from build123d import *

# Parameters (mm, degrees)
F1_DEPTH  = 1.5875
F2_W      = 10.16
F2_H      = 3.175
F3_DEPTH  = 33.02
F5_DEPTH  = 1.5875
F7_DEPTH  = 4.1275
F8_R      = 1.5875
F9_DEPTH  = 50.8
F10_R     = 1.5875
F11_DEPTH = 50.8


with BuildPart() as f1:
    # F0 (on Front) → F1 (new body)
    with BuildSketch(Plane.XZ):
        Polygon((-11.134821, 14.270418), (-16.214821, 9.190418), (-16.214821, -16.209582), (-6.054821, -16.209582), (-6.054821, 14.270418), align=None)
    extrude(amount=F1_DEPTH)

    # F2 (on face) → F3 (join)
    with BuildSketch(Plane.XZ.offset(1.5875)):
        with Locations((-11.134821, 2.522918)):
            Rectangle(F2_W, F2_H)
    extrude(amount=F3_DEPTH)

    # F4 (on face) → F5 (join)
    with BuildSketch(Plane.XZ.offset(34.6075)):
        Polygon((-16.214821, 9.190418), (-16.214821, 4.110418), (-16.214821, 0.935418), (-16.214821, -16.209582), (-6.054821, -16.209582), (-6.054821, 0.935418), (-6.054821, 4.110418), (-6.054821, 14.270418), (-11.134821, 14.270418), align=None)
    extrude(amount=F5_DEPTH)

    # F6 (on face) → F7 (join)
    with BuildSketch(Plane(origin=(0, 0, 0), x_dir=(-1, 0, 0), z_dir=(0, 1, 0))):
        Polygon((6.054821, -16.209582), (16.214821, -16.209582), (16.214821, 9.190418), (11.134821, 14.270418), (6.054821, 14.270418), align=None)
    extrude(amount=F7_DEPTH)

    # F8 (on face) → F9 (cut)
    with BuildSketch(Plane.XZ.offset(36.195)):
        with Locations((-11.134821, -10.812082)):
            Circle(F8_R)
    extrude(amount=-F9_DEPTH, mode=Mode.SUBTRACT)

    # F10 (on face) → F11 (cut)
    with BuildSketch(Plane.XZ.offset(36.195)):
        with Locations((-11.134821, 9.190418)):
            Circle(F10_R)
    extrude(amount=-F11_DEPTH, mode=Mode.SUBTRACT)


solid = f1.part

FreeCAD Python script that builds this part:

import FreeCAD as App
import Part
import Sketcher
Q = App.Units.Quantity

doc = App.newDocument("Part")
body = doc.addObject("PartDesign::Body", "Body")

# Sketch on XZ plane
sketch1 = body.newObject("Sketcher::SketchObject", "Sketch")
sketch1.AttachmentSupport = (doc.getObject("XZ_Plane"), [""])
sketch1.MapMode = "FlatFace"
sketch1.addGeometry([
    Part.LineSegment(App.Vector(-11, 14, 0), App.Vector(-16, 9, 0)),  # 0
    Part.LineSegment(App.Vector(-16, 9, 0), App.Vector(-16, -16, 0)),  # 1
    Part.LineSegment(App.Vector(-16, -16, 0), App.Vector(-6, -16, 0)),  # 2
    Part.LineSegment(App.Vector(-6, -16, 0), App.Vector(-6, 14, 0)),  # 3
    Part.LineSegment(App.Vector(-6, 14, 0), App.Vector(-11, 14, 0)),  # 4
], False)
sketch1.addConstraint([
    Sketcher.Constraint("Coincident", 0, 2, 1, 1),
    Sketcher.Constraint("Coincident", 1, 2, 2, 1),
    Sketcher.Constraint("Coincident", 2, 2, 3, 1),
    Sketcher.Constraint("Coincident", 3, 2, 4, 1),
    Sketcher.Constraint("Coincident", 4, 2, 0, 1),
    Sketcher.Constraint("Vertical", 1),
    Sketcher.Constraint("Horizontal", 2),
    Sketcher.Constraint("Vertical", 3),
    Sketcher.Constraint("Horizontal", 4),
    Sketcher.Constraint("DistanceY", 1, 2, 1, 1, Q("1 in")),
    Sketcher.Constraint("DistanceX", 2, 1, 2, 2, Q("0.4 in")),
    Sketcher.Constraint("DistanceX", 4, 2, 4, 1, Q("0.2 in")),
    Sketcher.Constraint("DistanceY", 3, 1, 3, 2, Q("1.2 in")),
    Sketcher.Constraint("DistanceX", 0, 2, -1, 1, Q("16.214821 mm")),
    Sketcher.Constraint("DistanceY", -1, 1, 0, 2, Q("9.190418 mm")),
])
pad1 = body.newObject("PartDesign::Pad", "Pad")
pad1.Profile = sketch1
pad1.Length = Q("0.0625 in")

# Sketch on XZ plane
sketch2 = body.newObject("Sketcher::SketchObject", "Sketch001")
sketch2.AttachmentSupport = (doc.getObject("XZ_Plane"), [""])
sketch2.MapMode = "FlatFace"
sketch2.AttachmentOffset = App.Placement(App.Vector(0, 0, 0.0625 * 25.4), App.Rotation())
sketch2.addGeometry([
    Part.LineSegment(App.Vector(-16.2, 4.1, 0), App.Vector(-16.2, 0.9, 0)),
    Part.LineSegment(App.Vector(-16.2, 0.9, 0), App.Vector(-6.1, 0.9, 0)),
    Part.LineSegment(App.Vector(-6.1, 0.9, 0), App.Vector(-6.1, 4.1, 0)),
    Part.LineSegment(App.Vector(-6.1, 4.1, 0), App.Vector(-16.2, 4.1, 0)),
], False)
sketch2.addConstraint([
    Sketcher.Constraint("Coincident", 0, 2, 1, 1),
    Sketcher.Constraint("Coincident", 1, 2, 2, 1),
    Sketcher.Constraint("Coincident", 2, 2, 3, 1),
    Sketcher.Constraint("Coincident", 3, 2, 0, 1),
    Sketcher.Constraint("Vertical", 0),
    Sketcher.Constraint("Horizontal", 1),
    Sketcher.Constraint("Vertical", 2),
    Sketcher.Constraint("Horizontal", 3),
    Sketcher.Constraint("DistanceX", 1, 1, 1, 2, Q("0.4 in")),
    Sketcher.Constraint("DistanceY", 0, 2, 0, 1, Q("0.125 in")),
    Sketcher.Constraint("DistanceX", 0, 2, -1, 1, Q("16.214821 mm")),
    Sketcher.Constraint("DistanceY", -1, 1, 0, 2, Q("0.935418 mm")),
])
pad2 = body.newObject("PartDesign::Pad", "Pad001")
pad2.Profile = sketch2
pad2.Length = Q("1.3 in")

# Sketch on XZ plane
sketch3 = body.newObject("Sketcher::SketchObject", "Sketch002")
sketch3.AttachmentSupport = (doc.getObject("XZ_Plane"), [""])
sketch3.MapMode = "FlatFace"
sketch3.AttachmentOffset = App.Placement(App.Vector(0, 0, 1.3625 * 25.4), App.Rotation())
sketch3.addGeometry([
    Part.LineSegment(App.Vector(-16, 9, 0), App.Vector(-16, -16, 0)),  # 0
    Part.LineSegment(App.Vector(-16, -16, 0), App.Vector(-6, -16, 0)),  # 1
    Part.LineSegment(App.Vector(-6, -16, 0), App.Vector(-6, 14, 0)),  # 2
    Part.LineSegment(App.Vector(-6, 14, 0), App.Vector(-11, 14, 0)),  # 3
    Part.LineSegment(App.Vector(-11, 14, 0), App.Vector(-16, 9, 0)),  # 4
], False)
sketch3.addConstraint([
    Sketcher.Constraint("Coincident", 0, 2, 1, 1),
    Sketcher.Constraint("Coincident", 1, 2, 2, 1),
    Sketcher.Constraint("Coincident", 2, 2, 3, 1),
    Sketcher.Constraint("Coincident", 3, 2, 4, 1),
    Sketcher.Constraint("Coincident", 4, 2, 0, 1),
    Sketcher.Constraint("Vertical", 0),
    Sketcher.Constraint("Horizontal", 1),
    Sketcher.Constraint("Vertical", 2),
    Sketcher.Constraint("Horizontal", 3),
    Sketcher.Constraint("DistanceY", 0, 2, 0, 1, Q("1 in")),
    Sketcher.Constraint("DistanceX", 1, 1, 1, 2, Q("0.4 in")),
    Sketcher.Constraint("DistanceX", 3, 2, 3, 1, Q("0.2 in")),
    Sketcher.Constraint("DistanceY", 2, 1, 2, 2, Q("1.2 in")),
    Sketcher.Constraint("DistanceX", 0, 2, -1, 1, Q("16.214821 mm")),
    Sketcher.Constraint("DistanceY", 0, 2, -1, 1, Q("16.209582 mm")),
])
pad3 = body.newObject("PartDesign::Pad", "Pad002")
pad3.Profile = sketch3
pad3.Length = Q("0.0625 in")

# Sketch on XZ plane
sketch4 = body.newObject("Sketcher::SketchObject", "Sketch003")
sketch4.AttachmentSupport = (doc.getObject("XZ_Plane"), [""])
sketch4.MapMode = "FlatFace"
sketch4.addGeometry([
    Part.LineSegment(App.Vector(-6, -16, 0), App.Vector(-16, -16, 0)),  # 0
    Part.LineSegment(App.Vector(-16, -16, 0), App.Vector(-16, 9, 0)),  # 1
    Part.LineSegment(App.Vector(-16, 9, 0), App.Vector(-11, 14, 0)),  # 2
    Part.LineSegment(App.Vector(-11, 14, 0), App.Vector(-6, 14, 0)),  # 3
    Part.LineSegment(App.Vector(-6, 14, 0), App.Vector(-6, -16, 0)),  # 4
], False)
sketch4.addConstraint([
    Sketcher.Constraint("Coincident", 0, 2, 1, 1),
    Sketcher.Constraint("Coincident", 1, 2, 2, 1),
    Sketcher.Constraint("Coincident", 2, 2, 3, 1),
    Sketcher.Constraint("Coincident", 3, 2, 4, 1),
    Sketcher.Constraint("Coincident", 4, 2, 0, 1),
    Sketcher.Constraint("Horizontal", 0),
    Sketcher.Constraint("Vertical", 1),
    Sketcher.Constraint("Horizontal", 3),
    Sketcher.Constraint("Vertical", 4),
    Sketcher.Constraint("DistanceY", 1, 1, 1, 2, Q("1 in")),
    Sketcher.Constraint("DistanceX", 0, 2, 0, 1, Q("0.4 in")),
    Sketcher.Constraint("DistanceX", 3, 1, 3, 2, Q("0.2 in")),
    Sketcher.Constraint("DistanceY", 4, 2, 4, 1, Q("1.2 in")),
    Sketcher.Constraint("DistanceX", 0, 2, -1, 1, Q("16.214821 mm")),
    Sketcher.Constraint("DistanceY", 0, 2, -1, 1, Q("16.209582 mm")),
])
pad4 = body.newObject("PartDesign::Pad", "Pad003")
pad4.Profile = sketch4
pad4.Length = Q("0.1625 in")
pad4.Reversed = True

# Sketch on XZ plane
sketch5 = body.newObject("Sketcher::SketchObject", "Sketch004")
sketch5.AttachmentSupport = (doc.getObject("XZ_Plane"), [""])
sketch5.MapMode = "FlatFace"
sketch5.AttachmentOffset = App.Placement(App.Vector(0, 0, 1.425 * 25.4), App.Rotation())
sketch5.addGeometry(Part.Circle(App.Vector(-11.1, -10.8, 0), App.Vector(0, 0, 1), 1.6), False)
sketch5.addConstraint([
    Sketcher.Constraint("Diameter", 0, Q("0.125 in")),
    Sketcher.Constraint("DistanceX", 0, 3, -1, 1, Q("11.134821 mm")),
    Sketcher.Constraint("DistanceY", 0, 3, -1, 1, Q("10.812082 mm")),
])
pocket1 = body.newObject("PartDesign::Pocket", "Pocket")
pocket1.Profile = sketch5
pocket1.Length = Q("2 in")

# Sketch on XZ plane
sketch6 = body.newObject("Sketcher::SketchObject", "Sketch005")
sketch6.AttachmentSupport = (doc.getObject("XZ_Plane"), [""])
sketch6.MapMode = "FlatFace"
sketch6.AttachmentOffset = App.Placement(App.Vector(0, 0, 1.425 * 25.4), App.Rotation())
sketch6.addGeometry(Part.Circle(App.Vector(-11.1, 9.2, 0), App.Vector(0, 0, 1), 1.6), False)
sketch6.addConstraint([
    Sketcher.Constraint("Diameter", 0, Q("0.125 in")),
    Sketcher.Constraint("DistanceX", 0, 3, -1, 1, Q("11.134821 mm")),
    Sketcher.Constraint("DistanceY", -1, 1, 0, 3, Q("9.190418 mm")),
])
pocket2 = body.newObject("PartDesign::Pocket", "Pocket001")
pocket2.Profile = sketch6
pocket2.Length = Q("2 in")

doc.recompute()
